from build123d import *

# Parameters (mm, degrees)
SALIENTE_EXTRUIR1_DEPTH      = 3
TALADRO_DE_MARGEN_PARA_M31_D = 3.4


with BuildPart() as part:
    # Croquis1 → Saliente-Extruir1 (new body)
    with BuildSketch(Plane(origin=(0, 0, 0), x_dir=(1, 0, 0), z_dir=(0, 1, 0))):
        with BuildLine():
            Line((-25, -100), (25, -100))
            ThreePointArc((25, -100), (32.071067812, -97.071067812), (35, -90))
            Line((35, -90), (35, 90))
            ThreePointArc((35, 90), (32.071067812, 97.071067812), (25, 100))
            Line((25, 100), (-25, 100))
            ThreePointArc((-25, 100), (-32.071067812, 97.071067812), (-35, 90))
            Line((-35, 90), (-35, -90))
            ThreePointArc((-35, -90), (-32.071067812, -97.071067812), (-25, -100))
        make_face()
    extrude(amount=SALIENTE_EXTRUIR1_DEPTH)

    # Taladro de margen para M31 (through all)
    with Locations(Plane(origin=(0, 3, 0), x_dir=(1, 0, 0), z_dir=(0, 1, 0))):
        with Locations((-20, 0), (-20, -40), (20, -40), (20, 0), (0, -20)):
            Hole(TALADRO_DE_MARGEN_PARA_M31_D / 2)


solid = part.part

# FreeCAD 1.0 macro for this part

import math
import FreeCAD as App
import Part
import Sketcher
from FreeCAD import Vector

doc = App.newDocument("Part")
body = doc.addObject("PartDesign::Body", "Body")

# Sketch on XZ plane
sketch1 = body.newObject("Sketcher::SketchObject", "Sketch")
sketch1.AttachmentSupport = (doc.getObject("XZ_Plane"), [""])
sketch1.MapMode = "FlatFace"
sketch1.addGeometry(Part.LineSegment(Vector(-25, 100, 0), Vector(25, 100, 0)), False)
sketch1.addGeometry(Part.ArcOfCircle(Part.Circle(Vector(25, 90, 0), Vector(0, 0, 1), 10), math.radians(0), math.radians(90)), False)
sketch1.addGeometry(Part.LineSegment(Vector(35, 90, 0), Vector(35, -90, 0)), False)
sketch1.addGeometry(Part.ArcOfCircle(Part.Circle(Vector(25, -90, 0), Vector(0, 0, 1), 10), math.radians(-90), math.radians(0)), False)
sketch1.addGeometry(Part.LineSegment(Vector(25, -100, 0), Vector(-25, -100, 0)), False)
sketch1.addGeometry(Part.ArcOfCircle(Part.Circle(Vector(-25, -90, 0), Vector(0, 0, 1), 10), math.radians(180), math.radians(270)), False)
sketch1.addGeometry(Part.LineSegment(Vector(-35, -90, 0), Vector(-35, 90, 0)), False)
sketch1.addGeometry(Part.ArcOfCircle(Part.Circle(Vector(-25, 90, 0), Vector(0, 0, 1), 10), math.radians(90), math.radians(180)), False)
sketch1.addConstraint(Sketcher.Constraint("Tangent", 0, 2, 1, 2))
sketch1.addConstraint(Sketcher.Constraint("Tangent", 1, 1, 2, 1))
sketch1.addConstraint(Sketcher.Constraint("Tangent", 2, 2, 3, 2))
sketch1.addConstraint(Sketcher.Constraint("Tangent", 3, 1, 4, 1))
sketch1.addConstraint(Sketcher.Constraint("Tangent", 4, 2, 5, 2))
sketch1.addConstraint(Sketcher.Constraint("Tangent", 5, 1, 6, 1))
sketch1.addConstraint(Sketcher.Constraint("Tangent", 6, 2, 7, 2))
sketch1.addConstraint(Sketcher.Constraint("Tangent", 7, 1, 0, 1))
sketch1.addConstraint(Sketcher.Constraint("Horizontal", 0))
sketch1.addConstraint(Sketcher.Constraint("Vertical", 2))
sketch1.addConstraint(Sketcher.Constraint("Horizontal", 4))
sketch1.addConstraint(Sketcher.Constraint("Vertical", 6))
sketch1.addConstraint(Sketcher.Constraint("Equal", 1, 3))
sketch1.addConstraint(Sketcher.Constraint("Equal", 3, 5))
sketch1.addConstraint(Sketcher.Constraint("Equal", 5, 7))
sketch1.addConstraint(Sketcher.Constraint("Symmetric", 1, 3, 5, 3, -1, 1))
sketch1.addConstraint(Sketcher.Constraint("Radius", 1, 10.0))
sketch1.addConstraint(Sketcher.Constraint("DistanceX", 0, 1, 0, 2, 50.0))
sketch1.addConstraint(Sketcher.Constraint("DistanceY", 2, 2, 2, 1, 180.0))
pad1 = body.newObject("PartDesign::Pad", "Pad")
pad1.Profile = sketch1
pad1.Length = 3
pad1.Reversed = True

# Sketch on XZ plane
sketch2 = body.newObject("Sketcher::SketchObject", "Sketch001")
sketch2.AttachmentSupport = (doc.getObject("XZ_Plane"), [""])
sketch2.MapMode = "FlatFace"
sketch2.AttachmentOffset = App.Placement(Vector(0, 0, -3), App.Rotation())
sketch2.addGeometry(Part.Circle(Vector(-20, 0, 0), Vector(0, 0, 1), 1.7), False)
sketch2.addGeometry(Part.Circle(Vector(-20, 40, 0), Vector(0, 0, 1), 1.7), False)
sketch2.addGeometry(Part.Circle(Vector(20, 40, 0), Vector(0, 0, 1), 1.7), False)
sketch2.addGeometry(Part.Circle(Vector(20, 0, 0), Vector(0, 0, 1), 1.7), False)
sketch2.addGeometry(Part.Circle(Vector(0, 20, 0), Vector(0, 0, 1), 1.7), False)
sketch2.addConstraint(Sketcher.Constraint("Equal", 0, 1))
sketch2.addConstraint(Sketcher.Constraint("Equal", 1, 2))
sketch2.addConstraint(Sketcher.Constraint("Equal", 2, 3))
sketch2.addConstraint(Sketcher.Constraint("Equal", 3, 4))
sketch2.addConstraint(Sketcher.Constraint("Symmetric", 0, 3, 3, 3, -1, 1))
sketch2.addConstraint(Sketcher.Constraint("Symmetric", 1, 3, 2, 3, -2))
sketch2.addConstraint(Sketcher.Constraint("PointOnObject", 0, 3, -1))
sketch2.addConstraint(Sketcher.Constraint("PointOnObject", 4, 3, -2))
sketch2.addConstraint(Sketcher.Constraint("Vertical", 0, 3, 1, 3))
sketch2.addConstraint(Sketcher.Constraint("Diameter", 0, 3.4))
sketch2.addConstraint(Sketcher.Constraint("DistanceX", 0, 3, -1, 1, 20.0))
sketch2.addConstraint(Sketcher.Constraint("DistanceY", -1, 1, 1, 3, 40.0))
sketch2.addConstraint(Sketcher.Constraint("DistanceY", -1, 1, 4, 3, 20.0))
doc.recompute()
hole = body.newObject("PartDesign::Hole", "Hole")
hole.Profile = sketch2
hole.ThreadType = "None"
hole.Diameter = 3.4
hole.DepthType = "ThroughAll"
hole.Reversed = True

doc.recompute()
